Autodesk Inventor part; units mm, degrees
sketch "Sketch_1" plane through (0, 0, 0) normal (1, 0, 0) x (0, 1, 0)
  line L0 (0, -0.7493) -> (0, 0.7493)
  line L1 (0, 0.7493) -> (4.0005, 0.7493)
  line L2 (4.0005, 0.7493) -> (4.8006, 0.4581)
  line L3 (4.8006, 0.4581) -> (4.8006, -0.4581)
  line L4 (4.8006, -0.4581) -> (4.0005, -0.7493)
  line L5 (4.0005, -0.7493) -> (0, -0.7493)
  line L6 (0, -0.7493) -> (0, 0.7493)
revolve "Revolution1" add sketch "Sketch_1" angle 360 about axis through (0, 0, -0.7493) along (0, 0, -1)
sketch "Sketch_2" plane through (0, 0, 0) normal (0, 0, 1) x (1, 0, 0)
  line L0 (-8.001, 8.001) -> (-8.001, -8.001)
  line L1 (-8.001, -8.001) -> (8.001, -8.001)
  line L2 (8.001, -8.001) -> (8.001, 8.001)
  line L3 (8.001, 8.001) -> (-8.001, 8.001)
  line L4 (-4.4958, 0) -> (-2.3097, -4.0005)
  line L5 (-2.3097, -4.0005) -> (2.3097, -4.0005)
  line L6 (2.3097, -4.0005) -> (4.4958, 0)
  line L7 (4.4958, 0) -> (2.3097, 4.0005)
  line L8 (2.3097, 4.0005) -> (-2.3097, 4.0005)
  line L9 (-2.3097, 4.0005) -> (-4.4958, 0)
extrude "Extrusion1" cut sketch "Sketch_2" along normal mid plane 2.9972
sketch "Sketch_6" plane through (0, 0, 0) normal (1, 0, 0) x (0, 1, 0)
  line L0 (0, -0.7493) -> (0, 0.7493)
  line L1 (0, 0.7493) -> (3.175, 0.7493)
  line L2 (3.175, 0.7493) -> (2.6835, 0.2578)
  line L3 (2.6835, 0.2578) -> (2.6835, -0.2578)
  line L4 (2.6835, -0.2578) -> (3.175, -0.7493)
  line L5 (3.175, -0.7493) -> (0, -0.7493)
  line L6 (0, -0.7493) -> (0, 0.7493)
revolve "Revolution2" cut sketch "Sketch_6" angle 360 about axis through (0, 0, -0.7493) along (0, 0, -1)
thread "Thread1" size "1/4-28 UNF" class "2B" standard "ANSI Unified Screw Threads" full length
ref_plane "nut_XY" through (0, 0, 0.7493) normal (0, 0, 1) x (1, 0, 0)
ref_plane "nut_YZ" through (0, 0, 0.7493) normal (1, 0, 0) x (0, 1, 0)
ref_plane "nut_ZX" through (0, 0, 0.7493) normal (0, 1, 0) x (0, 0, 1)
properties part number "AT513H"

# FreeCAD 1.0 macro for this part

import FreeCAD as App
import Part
import Sketcher
Q = App.Units.Quantity

doc = App.newDocument("Part")
body = doc.addObject("PartDesign::Body", "Body")

sketch1 = body.newObject("Sketcher::SketchObject", "Sketch")
sketch1.AttachmentSupport = (doc.getObject("YZ_Plane"), [""])
sketch1.MapMode = "FlatFace"
sketch1.addGeometry([
    Part.LineSegment(App.Vector(0, 0.7, 0), App.Vector(0, -0.7, 0)),
    Part.LineSegment(App.Vector(0, -0.7, 0), App.Vector(4, -0.7, 0)),
    Part.LineSegment(App.Vector(4, -0.7, 0), App.Vector(4.8, -0.5, 0)),
    Part.LineSegment(App.Vector(4.8, -0.5, 0), App.Vector(4.8, 0.5, 0)),
    Part.LineSegment(App.Vector(4.8, 0.5, 0), App.Vector(4, 0.7, 0)),
    Part.LineSegment(App.Vector(4, 0.7, 0), App.Vector(0, 0.7, 0)),
], False)
sketch1.addConstraint([
    Sketcher.Constraint("Coincident", 0, 2, 1, 1),
    Sketcher.Constraint("Coincident", 1, 2, 2, 1),
    Sketcher.Constraint("Coincident", 2, 2, 3, 1),
    Sketcher.Constraint("Coincident", 3, 2, 4, 1),
    Sketcher.Constraint("Coincident", 4, 2, 5, 1),
    Sketcher.Constraint("Coincident", 5, 2, 0, 1),
    Sketcher.Constraint("Vertical", 0),
    Sketcher.Constraint("Horizontal", 1),
    Sketcher.Constraint("Vertical", 3),
    Sketcher.Constraint("Horizontal", 5),
    Sketcher.Constraint("Symmetric", 0, 2, 5, 2, -1, 1),
    Sketcher.Constraint("Vertical", 1, 2, 4, 2),
    Sketcher.Constraint("Equal", 2, 4),
    Sketcher.Constraint("Angle", 2, Q("19.9992 deg")),
    Sketcher.Constraint("DistanceY", 0, 2, 0, 1, Q("0.059 in")),
    Sketcher.Constraint("DistanceX", 1, 1, 1, 2, Q("0.1575 in")),
    Sketcher.Constraint("DistanceX", -1, 1, 2, 2, Q("0.189 in")),
])
revolution = body.newObject("PartDesign::Revolution", "Revolution")
revolution.Profile = sketch1
revolution.ReferenceAxis = (sketch1, ["V_Axis"])
revolution.Angle = 360

sketch2 = body.newObject("Sketcher::SketchObject", "Sketch001")
sketch2.AttachmentSupport = (doc.getObject("XY_Plane"), [""])
sketch2.MapMode = "FlatFace"
sketch2.addGeometry([
    Part.LineSegment(App.Vector(8, 8, 0), App.Vector(-8, 8, 0)),
    Part.LineSegment(App.Vector(-8, 8, 0), App.Vector(-8, -8, 0)),
    Part.LineSegment(App.Vector(-8, -8, 0), App.Vector(8, -8, 0)),
    Part.LineSegment(App.Vector(8, -8, 0), App.Vector(8, 8, 0)),
    Part.LineSegment(App.Vector(-2.3, -4, 0), App.Vector(-4.5, 0, 0)),
    Part.LineSegment(App.Vector(-4.5, 0, 0), App.Vector(-2.3, 4, 0)),
    Part.LineSegment(App.Vector(-2.3, 4, 0), App.Vector(2.3, 4, 0)),
    Part.LineSegment(App.Vector(2.3, 4, 0), App.Vector(4.5, 0, 0)),
    Part.LineSegment(App.Vector(4.5, 0, 0), App.Vector(2.3, -4, 0)),
    Part.LineSegment(App.Vector(2.3, -4, 0), App.Vector(-2.3, -4, 0)),
], False)
sketch2.addConstraint([
    Sketcher.Constraint("Coincident", 0, 2, 1, 1),
    Sketcher.Constraint("Coincident", 1, 2, 2, 1),
    Sketcher.Constraint("Coincident", 2, 2, 3, 1),
    Sketcher.Constraint("Coincident", 3, 2, 0, 1),
    Sketcher.Constraint("Coincident", 4, 2, 5, 1),
    Sketcher.Constraint("Coincident", 5, 2, 6, 1),
    Sketcher.Constraint("Coincident", 6, 2, 7, 1),
    Sketcher.Constraint("Coincident", 7, 2, 8, 1),
    Sketcher.Constraint("Coincident", 8, 2, 9, 1),
    Sketcher.Constraint("Coincident", 9, 2, 4, 1),
    Sketcher.Constraint("Horizontal", 0),
    Sketcher.Constraint("Vertical", 1),
    Sketcher.Constraint("Horizontal", 2),
    Sketcher.Constraint("Vertical", 3),
    Sketcher.Constraint("Horizontal", 6),
    Sketcher.Constraint("Horizontal", 9),
    Sketcher.Constraint("Symmetric", 0, 2, 2, 2, -1, 1),
    Sketcher.Constraint("Symmetric", 4, 2, 7, 2, -1, 1),
    Sketcher.Constraint("Symmetric", 5, 2, 8, 2, -1, 1),
    Sketcher.Constraint("PointOnObject", 4, 2, -1),
    Sketcher.Constraint("Parallel", 4, 7),
    Sketcher.Constraint("Vertical", 6, 2, 8, 2),
    Sketcher.Constraint("Equal", 2, 1),
    Sketcher.Constraint("DistanceX", 0, 2, 0, 1, Q("0.63 in")),
    Sketcher.Constraint("DistanceX", 4, 2, -1, 1, Q("0.177 in")),
    Sketcher.Constraint("DistanceY", 8, 2, 6, 2, Q("0.315 in")),
    Sketcher.Constraint("DistanceX", 6, 1, 6, 2, Q("4.6194 mm")),
])
pocket1 = body.newObject("PartDesign::Pocket", "Pocket")
pocket1.Profile = sketch2
pocket1.Length = Q("0.118 in")
pocket1.Midplane = True

sketch3 = body.newObject("Sketcher::SketchObject", "Sketch002")
sketch3.AttachmentSupport = (doc.getObject("YZ_Plane"), [""])
sketch3.MapMode = "FlatFace"
sketch3.addGeometry([
    Part.LineSegment(App.Vector(0, 0.7, 0), App.Vector(0, -0.7, 0)),
    Part.LineSegment(App.Vector(0, -0.7, 0), App.Vector(3.2, -0.7, 0)),
    Part.LineSegment(App.Vector(3.2, -0.7, 0), App.Vector(2.7, -0.3, 0)),
    Part.LineSegment(App.Vector(2.7, -0.3, 0), App.Vector(2.7, 0.3, 0)),
    Part.LineSegment(App.Vector(2.7, 0.3, 0), App.Vector(3.2, 0.7, 0)),
    Part.LineSegment(App.Vector(3.2, 0.7, 0), App.Vector(0, 0.7, 0)),
], False)
sketch3.addConstraint([
    Sketcher.Constraint("Coincident", 0, 2, 1, 1),
    Sketcher.Constraint("Coincident", 1, 2, 2, 1),
    Sketcher.Constraint("Coincident", 2, 2, 3, 1),
    Sketcher.Constraint("Coincident", 3, 2, 4, 1),
    Sketcher.Constraint("Coincident", 4, 2, 5, 1),
    Sketcher.Constraint("Coincident", 5, 2, 0, 1),
    Sketcher.Constraint("Vertical", 0),
    Sketcher.Constraint("Horizontal", 1),
    Sketcher.Constraint("Vertical", 3),
    Sketcher.Constraint("Horizontal", 5),
    Sketcher.Constraint("Symmetric", 0, 2, 5, 2, -1, 1),
    Sketcher.Constraint("Perpendicular", 2, 4),
    Sketcher.Constraint("Vertical", 1, 2, 4, 2),
    Sketcher.Constraint("Equal", 2, 4),
    Sketcher.Constraint("DistanceX", 1, 1, 1, 2, Q("0.125 in")),
    Sketcher.Constraint("DistanceY", 0, 2, 0, 1, Q("0.059 in")),
    Sketcher.Constraint("DistanceY", 3, 1, 3, 2, Q("0.0203 in")),
])
groove = body.newObject("PartDesign::Groove", "Groove")
groove.Profile = sketch3
groove.ReferenceAxis = (sketch3, ["V_Axis"])
groove.Angle = 360

doc.recompute()
